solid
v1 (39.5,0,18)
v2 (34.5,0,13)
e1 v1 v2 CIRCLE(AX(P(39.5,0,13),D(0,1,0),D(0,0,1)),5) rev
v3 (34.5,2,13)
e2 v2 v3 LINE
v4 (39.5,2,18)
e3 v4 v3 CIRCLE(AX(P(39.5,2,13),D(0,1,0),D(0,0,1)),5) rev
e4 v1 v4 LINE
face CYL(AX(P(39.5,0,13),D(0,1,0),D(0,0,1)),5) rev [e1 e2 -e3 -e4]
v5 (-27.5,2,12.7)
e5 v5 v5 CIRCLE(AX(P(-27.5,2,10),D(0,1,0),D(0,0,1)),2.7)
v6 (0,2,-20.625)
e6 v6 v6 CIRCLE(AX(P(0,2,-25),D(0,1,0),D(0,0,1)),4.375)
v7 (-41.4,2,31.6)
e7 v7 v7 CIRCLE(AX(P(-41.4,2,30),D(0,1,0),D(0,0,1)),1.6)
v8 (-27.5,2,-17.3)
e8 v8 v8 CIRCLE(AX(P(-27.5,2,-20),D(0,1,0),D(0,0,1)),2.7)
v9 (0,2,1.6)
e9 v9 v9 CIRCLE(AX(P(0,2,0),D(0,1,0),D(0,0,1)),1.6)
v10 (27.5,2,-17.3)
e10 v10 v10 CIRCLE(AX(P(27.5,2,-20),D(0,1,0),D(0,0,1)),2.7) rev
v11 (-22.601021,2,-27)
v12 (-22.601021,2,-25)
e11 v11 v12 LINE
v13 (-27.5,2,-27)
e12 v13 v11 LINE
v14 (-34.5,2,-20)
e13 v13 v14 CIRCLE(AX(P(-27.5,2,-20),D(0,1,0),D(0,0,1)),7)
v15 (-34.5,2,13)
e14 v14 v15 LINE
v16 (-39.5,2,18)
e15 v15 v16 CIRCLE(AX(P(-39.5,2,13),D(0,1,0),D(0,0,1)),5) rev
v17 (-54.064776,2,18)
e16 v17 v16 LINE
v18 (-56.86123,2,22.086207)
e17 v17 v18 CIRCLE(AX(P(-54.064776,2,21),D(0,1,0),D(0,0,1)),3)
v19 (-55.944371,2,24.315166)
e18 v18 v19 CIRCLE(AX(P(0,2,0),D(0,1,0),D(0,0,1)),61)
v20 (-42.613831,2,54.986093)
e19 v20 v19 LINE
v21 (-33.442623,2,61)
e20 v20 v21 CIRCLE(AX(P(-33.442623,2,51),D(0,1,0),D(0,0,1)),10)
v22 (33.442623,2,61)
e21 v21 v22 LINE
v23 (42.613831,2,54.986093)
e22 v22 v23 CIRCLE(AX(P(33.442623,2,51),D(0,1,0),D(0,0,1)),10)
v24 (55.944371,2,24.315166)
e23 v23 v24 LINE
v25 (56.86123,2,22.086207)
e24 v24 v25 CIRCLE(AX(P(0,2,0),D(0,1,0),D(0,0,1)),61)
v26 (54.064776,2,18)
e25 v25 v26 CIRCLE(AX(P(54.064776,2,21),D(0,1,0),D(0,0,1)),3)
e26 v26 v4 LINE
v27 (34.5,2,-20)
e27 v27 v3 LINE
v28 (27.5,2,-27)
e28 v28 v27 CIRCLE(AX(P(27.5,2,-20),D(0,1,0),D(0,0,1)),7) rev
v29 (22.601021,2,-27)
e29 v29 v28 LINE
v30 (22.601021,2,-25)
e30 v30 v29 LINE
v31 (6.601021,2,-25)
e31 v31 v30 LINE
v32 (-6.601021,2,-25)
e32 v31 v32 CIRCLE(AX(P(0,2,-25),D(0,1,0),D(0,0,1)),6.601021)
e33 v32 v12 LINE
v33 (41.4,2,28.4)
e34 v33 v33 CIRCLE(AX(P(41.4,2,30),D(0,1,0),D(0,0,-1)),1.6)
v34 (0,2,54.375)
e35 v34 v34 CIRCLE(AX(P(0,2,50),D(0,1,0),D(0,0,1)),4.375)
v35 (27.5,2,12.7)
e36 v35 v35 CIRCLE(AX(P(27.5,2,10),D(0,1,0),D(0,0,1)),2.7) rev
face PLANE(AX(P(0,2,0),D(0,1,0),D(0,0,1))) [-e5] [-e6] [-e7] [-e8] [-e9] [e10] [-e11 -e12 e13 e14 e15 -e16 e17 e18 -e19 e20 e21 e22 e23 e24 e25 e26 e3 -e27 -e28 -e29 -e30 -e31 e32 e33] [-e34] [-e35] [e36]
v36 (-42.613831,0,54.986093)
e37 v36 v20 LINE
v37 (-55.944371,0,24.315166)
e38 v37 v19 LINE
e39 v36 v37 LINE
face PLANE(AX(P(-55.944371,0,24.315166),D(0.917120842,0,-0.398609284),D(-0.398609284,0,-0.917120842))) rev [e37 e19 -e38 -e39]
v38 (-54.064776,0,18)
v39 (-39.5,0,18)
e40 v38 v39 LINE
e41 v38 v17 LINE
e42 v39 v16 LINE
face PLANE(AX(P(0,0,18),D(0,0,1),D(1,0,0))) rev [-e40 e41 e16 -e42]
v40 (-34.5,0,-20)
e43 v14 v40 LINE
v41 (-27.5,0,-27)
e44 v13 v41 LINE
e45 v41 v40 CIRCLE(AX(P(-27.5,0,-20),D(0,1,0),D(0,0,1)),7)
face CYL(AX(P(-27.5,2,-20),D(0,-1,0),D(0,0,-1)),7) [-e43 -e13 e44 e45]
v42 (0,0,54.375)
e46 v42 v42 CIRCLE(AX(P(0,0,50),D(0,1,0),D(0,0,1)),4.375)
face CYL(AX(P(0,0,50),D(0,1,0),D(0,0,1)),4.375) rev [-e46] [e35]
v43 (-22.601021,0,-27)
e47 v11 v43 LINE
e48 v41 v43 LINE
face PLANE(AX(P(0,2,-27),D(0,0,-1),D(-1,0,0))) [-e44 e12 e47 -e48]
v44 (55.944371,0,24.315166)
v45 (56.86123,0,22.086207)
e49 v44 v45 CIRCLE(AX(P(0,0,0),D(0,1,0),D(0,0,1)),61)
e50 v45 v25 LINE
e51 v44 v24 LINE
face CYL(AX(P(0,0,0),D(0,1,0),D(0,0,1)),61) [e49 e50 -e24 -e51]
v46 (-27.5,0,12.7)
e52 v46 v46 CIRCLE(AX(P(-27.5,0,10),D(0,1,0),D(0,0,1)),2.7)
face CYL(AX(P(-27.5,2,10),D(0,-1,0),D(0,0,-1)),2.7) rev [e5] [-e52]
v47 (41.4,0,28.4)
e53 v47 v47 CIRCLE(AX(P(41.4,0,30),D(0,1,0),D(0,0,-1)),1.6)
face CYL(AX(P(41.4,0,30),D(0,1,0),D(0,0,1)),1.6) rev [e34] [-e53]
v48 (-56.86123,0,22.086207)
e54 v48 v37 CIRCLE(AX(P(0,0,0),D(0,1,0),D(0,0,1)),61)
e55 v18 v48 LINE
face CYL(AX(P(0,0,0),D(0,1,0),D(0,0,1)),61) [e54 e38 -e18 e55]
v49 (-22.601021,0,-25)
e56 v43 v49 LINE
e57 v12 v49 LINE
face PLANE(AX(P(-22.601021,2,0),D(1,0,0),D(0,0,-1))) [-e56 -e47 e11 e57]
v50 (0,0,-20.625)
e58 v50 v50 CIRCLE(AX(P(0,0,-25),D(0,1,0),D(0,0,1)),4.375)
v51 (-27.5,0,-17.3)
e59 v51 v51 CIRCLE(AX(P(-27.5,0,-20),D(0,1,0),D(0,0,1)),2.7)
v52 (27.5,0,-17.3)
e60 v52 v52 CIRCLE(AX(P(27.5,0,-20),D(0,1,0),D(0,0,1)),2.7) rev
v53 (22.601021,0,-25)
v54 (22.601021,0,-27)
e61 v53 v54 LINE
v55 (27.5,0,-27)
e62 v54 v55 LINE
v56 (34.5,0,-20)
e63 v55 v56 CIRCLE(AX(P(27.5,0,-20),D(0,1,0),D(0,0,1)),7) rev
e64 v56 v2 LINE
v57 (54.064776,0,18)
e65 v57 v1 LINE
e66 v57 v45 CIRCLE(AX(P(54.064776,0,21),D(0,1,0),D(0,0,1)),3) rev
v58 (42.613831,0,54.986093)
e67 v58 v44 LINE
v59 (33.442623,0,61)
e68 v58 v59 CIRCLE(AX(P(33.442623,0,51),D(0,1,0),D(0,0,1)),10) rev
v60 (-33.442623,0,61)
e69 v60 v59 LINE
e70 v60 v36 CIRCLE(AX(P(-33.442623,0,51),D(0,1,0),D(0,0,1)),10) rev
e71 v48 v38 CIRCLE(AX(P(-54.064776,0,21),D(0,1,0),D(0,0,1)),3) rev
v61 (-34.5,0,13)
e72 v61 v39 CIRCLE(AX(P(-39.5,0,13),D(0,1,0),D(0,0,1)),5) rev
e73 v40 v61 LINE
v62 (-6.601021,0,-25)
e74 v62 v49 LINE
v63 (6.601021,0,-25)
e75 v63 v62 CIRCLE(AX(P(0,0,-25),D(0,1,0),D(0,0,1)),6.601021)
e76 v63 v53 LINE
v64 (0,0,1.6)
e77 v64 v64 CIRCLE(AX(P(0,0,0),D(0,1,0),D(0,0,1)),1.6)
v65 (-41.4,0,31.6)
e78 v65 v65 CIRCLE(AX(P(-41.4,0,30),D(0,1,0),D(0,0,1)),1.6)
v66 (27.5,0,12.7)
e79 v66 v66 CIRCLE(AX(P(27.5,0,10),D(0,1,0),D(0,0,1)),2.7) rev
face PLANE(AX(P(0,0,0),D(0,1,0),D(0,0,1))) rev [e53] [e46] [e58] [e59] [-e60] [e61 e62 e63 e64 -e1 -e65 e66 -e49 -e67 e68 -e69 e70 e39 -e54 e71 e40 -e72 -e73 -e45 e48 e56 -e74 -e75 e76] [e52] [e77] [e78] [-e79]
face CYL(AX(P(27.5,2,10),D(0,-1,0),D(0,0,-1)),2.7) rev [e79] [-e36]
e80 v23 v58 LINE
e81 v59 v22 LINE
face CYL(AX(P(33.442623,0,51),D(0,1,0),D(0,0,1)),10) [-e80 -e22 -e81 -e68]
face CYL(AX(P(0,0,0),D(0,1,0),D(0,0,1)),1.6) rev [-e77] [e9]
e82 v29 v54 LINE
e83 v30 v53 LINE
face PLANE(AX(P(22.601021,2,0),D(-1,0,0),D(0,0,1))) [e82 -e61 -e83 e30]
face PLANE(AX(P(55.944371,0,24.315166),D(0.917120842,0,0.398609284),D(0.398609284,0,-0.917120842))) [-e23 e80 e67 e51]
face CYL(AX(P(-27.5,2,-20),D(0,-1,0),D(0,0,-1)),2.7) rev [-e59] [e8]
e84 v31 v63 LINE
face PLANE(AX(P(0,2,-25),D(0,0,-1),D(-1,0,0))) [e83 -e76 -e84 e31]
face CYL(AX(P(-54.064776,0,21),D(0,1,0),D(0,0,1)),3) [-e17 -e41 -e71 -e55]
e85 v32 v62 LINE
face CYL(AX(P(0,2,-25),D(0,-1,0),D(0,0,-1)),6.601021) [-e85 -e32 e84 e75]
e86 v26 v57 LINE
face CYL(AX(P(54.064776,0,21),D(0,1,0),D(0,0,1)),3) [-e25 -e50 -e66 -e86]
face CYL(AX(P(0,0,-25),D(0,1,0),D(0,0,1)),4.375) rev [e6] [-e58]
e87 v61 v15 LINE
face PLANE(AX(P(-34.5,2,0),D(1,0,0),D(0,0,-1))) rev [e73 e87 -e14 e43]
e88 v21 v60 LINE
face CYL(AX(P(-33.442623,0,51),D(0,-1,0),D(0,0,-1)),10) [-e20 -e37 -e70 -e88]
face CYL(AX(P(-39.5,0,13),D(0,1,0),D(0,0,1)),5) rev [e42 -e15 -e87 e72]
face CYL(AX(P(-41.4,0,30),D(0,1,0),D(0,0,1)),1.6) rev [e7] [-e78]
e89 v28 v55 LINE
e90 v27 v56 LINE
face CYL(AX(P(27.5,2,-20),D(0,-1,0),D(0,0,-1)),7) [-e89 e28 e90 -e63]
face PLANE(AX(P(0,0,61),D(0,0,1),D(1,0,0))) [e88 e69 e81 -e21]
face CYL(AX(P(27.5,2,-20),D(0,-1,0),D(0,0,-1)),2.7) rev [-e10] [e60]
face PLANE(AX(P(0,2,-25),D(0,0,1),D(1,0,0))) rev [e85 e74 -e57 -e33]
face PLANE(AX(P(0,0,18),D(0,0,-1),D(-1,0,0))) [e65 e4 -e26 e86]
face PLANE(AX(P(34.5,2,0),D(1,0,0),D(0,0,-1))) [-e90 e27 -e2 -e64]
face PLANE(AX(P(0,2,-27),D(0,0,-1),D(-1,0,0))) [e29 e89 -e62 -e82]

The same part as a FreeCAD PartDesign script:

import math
import FreeCAD as App
import Part
import Sketcher

V = App.Vector


def edges_at(feature, points):
    """Names of the edges that pass closest to the given points."""
    edges = feature.Shape.Edges
    near = lambda p: min(range(len(edges)), key=lambda i: edges[i].distToShape(Part.Vertex(*p))[0])
    return sorted({f"Edge{near(p) + 1}" for p in points})

doc = App.newDocument("Part")
params = doc.addObject("Spreadsheet::Sheet", "Params")
for row, (alias, value) in enumerate([
    ("sketch1_radius", "61 mm"),
    ("sketch1_radius2", "7 mm"),
    ("sketch1_diameter", "5.4 mm"),
    ("sketch1_width", "16 mm"),
    ("sketch1_height", "2 mm"),
    ("pad1_length", "2 mm"),
    ("sketch2_radius", "61 mm"),
    ("sketch2_radius2", "5 mm"),
    ("sketch2_width", "40 mm"),
    ("pad2_length", "2 mm"),
    ("fillet_radius", "3 mm"),
    ("sketch3_diameter", "3.2 mm"),
    ("sketch3_diameter2", "8.75 mm"),
    ("fillet2_radius", "10 mm"),
], start=1):
    params.set(f"A{row}", alias)
    params.set(f"B{row}", "=" + value)
    params.setAlias(f"B{row}", alias)

body = doc.addObject("PartDesign::Body", "Body")

sketch1 = body.newObject("Sketcher::SketchObject", "Sketch")
sketch1.AttachmentSupport = (doc.getObject("XZ_Plane"), [""])
sketch1.MapMode = "FlatFace"
sketch1.addGeometry(Part.LineSegment(V(-34.5, -20, 0), V(-34.5, 50.3, 0)), False)
sketch1.addGeometry(Part.ArcOfCircle(Part.Circle(V(0, 0, 0), V(0, 0, 1), 61), math.radians(56), math.radians(124)), False)
sketch1.addGeometry(Part.LineSegment(V(34.5, 50.3, 0), V(34.5, -20, 0)), False)
sketch1.addGeometry(Part.ArcOfCircle(Part.Circle(V(27.5, -20, 0), V(0, 0, 1), 7), math.radians(-90), math.radians(0)), False)
sketch1.addGeometry(Part.LineSegment(V(27.5, -27, 0), V(22.6, -27, 0)), False)
sketch1.addGeometry(Part.LineSegment(V(22.6, -27, 0), V(22.6, -25, 0)), False)
sketch1.addGeometry(Part.LineSegment(V(22.6, -25, 0), V(6.6, -25, 0)), False)
sketch1.addGeometry(Part.ArcOfCircle(Part.Circle(V(0, -25, 0), V(0, 0, 1), 6.6), math.radians(-17.64), math.radians(0)), False)
sketch1.addGeometry(Part.ArcOfCircle(Part.Circle(V(0, -25, 0), V(0, 0, 1), 6.6), math.radians(-162), math.radians(-18)), False)
sketch1.addGeometry(Part.ArcOfCircle(Part.Circle(V(0, -25, 0), V(0, 0, 1), 6.6), math.radians(180), math.radians(197.64)), False)
sketch1.addGeometry(Part.LineSegment(V(-6.6, -25, 0), V(-22.6, -25, 0)), False)
sketch1.addGeometry(Part.LineSegment(V(-22.6, -25, 0), V(-22.6, -27, 0)), False)
sketch1.addGeometry(Part.LineSegment(V(-22.6, -27, 0), V(-27.5, -27, 0)), False)
sketch1.addGeometry(Part.ArcOfCircle(Part.Circle(V(-27.5, -20, 0), V(0, 0, 1), 7), math.radians(180), math.radians(270)), False)
sketch1.addGeometry(Part.Circle(V(-27.5, 10, 0), V(0, 0, 1), 2.7), False)
sketch1.addGeometry(Part.Circle(V(-27.5, -20, 0), V(0, 0, 1), 2.7), False)
sketch1.addGeometry(Part.Circle(V(27.5, -20, 0), V(0, 0, 1), 2.7), False)
sketch1.addGeometry(Part.Circle(V(27.5, 10, 0), V(0, 0, 1), 2.7), False)
sketch1.addConstraint(Sketcher.Constraint("Coincident", 0, 2, 1, 2))
sketch1.addConstraint(Sketcher.Constraint("Coincident", 1, 1, 2, 1))
sketch1.addConstraint(Sketcher.Constraint("Tangent", 2, 2, 3, 2))
sketch1.addConstraint(Sketcher.Constraint("Tangent", 3, 1, 4, 1))
sketch1.addConstraint(Sketcher.Constraint("Coincident", 4, 2, 5, 1))
sketch1.addConstraint(Sketcher.Constraint("Coincident", 5, 2, 6, 1))
sketch1.addConstraint(Sketcher.Constraint("Coincident", 6, 2, 7, 2))
sketch1.addConstraint(Sketcher.Constraint("Tangent", 7, 1, 8, 2))
sketch1.addConstraint(Sketcher.Constraint("Tangent", 8, 1, 9, 2))
sketch1.addConstraint(Sketcher.Constraint("Coincident", 9, 1, 10, 1))
sketch1.addConstraint(Sketcher.Constraint("Coincident", 10, 2, 11, 1))
sketch1.addConstraint(Sketcher.Constraint("Coincident", 11, 2, 12, 1))
sketch1.addConstraint(Sketcher.Constraint("Tangent", 12, 2, 13, 2))
sketch1.addConstraint(Sketcher.Constraint("Tangent", 13, 1, 0, 1))
sketch1.addConstraint(Sketcher.Constraint("Vertical", 0))
sketch1.addConstraint(Sketcher.Constraint("Vertical", 2))
sketch1.addConstraint(Sketcher.Constraint("Horizontal", 4))
sketch1.addConstraint(Sketcher.Constraint("Vertical", 5))
sketch1.addConstraint(Sketcher.Constraint("Horizontal", 6))
sketch1.addConstraint(Sketcher.Constraint("Horizontal", 10))
sketch1.addConstraint(Sketcher.Constraint("Vertical", 11))
sketch1.addConstraint(Sketcher.Constraint("Horizontal", 12))
sketch1.addConstraint(Sketcher.Constraint("Coincident", 1, 3, -1, 1))
sketch1.addConstraint(Sketcher.Constraint("Coincident", 9, 3, 7, 3))
sketch1.addConstraint(Sketcher.Constraint("Coincident", 15, 3, 13, 3))
sketch1.addConstraint(Sketcher.Constraint("Coincident", 16, 3, 3, 3))
sketch1.addConstraint(Sketcher.Constraint("Equal", 3, 13))
sketch1.addConstraint(Sketcher.Constraint("Equal", 14, 15))
sketch1.addConstraint(Sketcher.Constraint("Equal", 15, 16))
sketch1.addConstraint(Sketcher.Constraint("Equal", 16, 17))
sketch1.addConstraint(Sketcher.Constraint("Symmetric", 3, 3, 13, 3, -2))
sketch1.addConstraint(Sketcher.Constraint("Symmetric", 14, 3, 17, 3, -2))
sketch1.addConstraint(Sketcher.Constraint("Symmetric", 7, 1, 8, 1, -2))
sketch1.addConstraint(Sketcher.Constraint("Symmetric", 5, 2, 10, 2, -2))
sketch1.addConstraint(Sketcher.Constraint("Horizontal", 9, 3, 5, 2))
sketch1.addConstraint(Sketcher.Constraint("Horizontal", 4, 2, 7, 1))
sketch1.addConstraint(Sketcher.Constraint("Vertical", 13, 3, 14, 3))
sketch1.addConstraint(Sketcher.Constraint("Radius", 1, 61.0))
sketch1.addConstraint(Sketcher.Constraint("Radius", 3, 7.0))
sketch1.addConstraint(Sketcher.Constraint("Diameter", 14, 5.4))
sketch1.addConstraint(Sketcher.Constraint("DistanceX", 6, 2, 6, 1, 16.0))
sketch1.addConstraint(Sketcher.Constraint("DistanceY", 5, 1, 5, 2, 2.0))
sketch1.addConstraint(Sketcher.Constraint("DistanceY", 3, 3, -1, 1, 20.0))
sketch1.addConstraint(Sketcher.Constraint("DistanceY", -1, 1, 14, 3, 10.0))
sketch1.addConstraint(Sketcher.Constraint("DistanceX", 13, 3, 3, 3, 55.0))
sketch1.addConstraint(Sketcher.Constraint("Radius", 7, 6.601021))
sketch1.setExpression("Constraints[37]", "Params.sketch1_radius")
sketch1.setExpression("Constraints[38]", "Params.sketch1_radius2")
sketch1.setExpression("Constraints[39]", "Params.sketch1_diameter")
sketch1.setExpression("Constraints[40]", "Params.sketch1_width")
sketch1.setExpression("Constraints[41]", "Params.sketch1_height")
pad1 = body.newObject("PartDesign::Pad", "Pad")
pad1.Profile = sketch1
pad1.setExpression("Length", "Params.pad1_length")
pad1.Reversed = True

sketch2 = body.newObject("Sketcher::SketchObject", "Sketch001")
sketch2.AttachmentSupport = (doc.getObject("XZ_Plane"), [""])
sketch2.MapMode = "FlatFace"
sketch2.addGeometry(Part.LineSegment(V(-56, 24, 0), V(-40, 61, 0)), False)
sketch2.addGeometry(Part.LineSegment(V(-40, 61, 0), V(0, 61, 0)), False)
sketch2.addGeometry(Part.ArcOfCircle(Part.Circle(V(0, 0, 0), V(0, 0, 1), 61), math.radians(90), math.radians(124)), False)
sketch2.addGeometry(Part.LineSegment(V(-34, 50, 0), V(-34, 13, 0)), False)
sketch2.addGeometry(Part.ArcOfCircle(Part.Circle(V(-40, 13, 0), V(0, 0, 1), 5), math.radians(0), math.radians(90)), False)
sketch2.addGeometry(Part.LineSegment(V(-40, 18, 0), V(-58, 18, 0)), False)
sketch2.addGeometry(Part.ArcOfCircle(Part.Circle(V(0, 0, 0), V(0, 0, 1), 61), math.radians(156.51), math.radians(162.84)), False)
sketch2.addGeometry(Part.ArcOfCircle(Part.Circle(V(0, 0, 0), V(0, 0, 1), 61), math.radians(56), math.radians(90)), False)
sketch2.addGeometry(Part.LineSegment(V(0, 61, 0), V(40, 61, 0)), False)
sketch2.addGeometry(Part.LineSegment(V(40, 61, 0), V(56, 24, 0)), False)
sketch2.addGeometry(Part.ArcOfCircle(Part.Circle(V(0, 0, 0), V(0, 0, 1), 61), math.radians(17.16), math.radians(23.49)), False)
sketch2.addGeometry(Part.LineSegment(V(58, 18, 0), V(40, 18, 0)), False)
sketch2.addGeometry(Part.ArcOfCircle(Part.Circle(V(40, 13, 0), V(0, 0, 1), 5), math.radians(90), math.radians(180)), False)
sketch2.addGeometry(Part.LineSegment(V(34, 13, 0), V(34, 50, 0)), False)
sketch2.addConstraint(Sketcher.Constraint("Coincident", 0, 2, 1, 1))
sketch2.addConstraint(Sketcher.Constraint("Tangent", 1, 2, 2, 1))
sketch2.addConstraint(Sketcher.Constraint("Coincident", 2, 2, 3, 1))
sketch2.addConstraint(Sketcher.Constraint("Tangent", 3, 2, 4, 1))
sketch2.addConstraint(Sketcher.Constraint("Tangent", 4, 2, 5, 1))
sketch2.addConstraint(Sketcher.Constraint("Coincident", 5, 2, 6, 2))
sketch2.addConstraint(Sketcher.Constraint("Tangent", 6, 1, 0, 1))
sketch2.addConstraint(Sketcher.Constraint("Tangent", 7, 2, 8, 1))
sketch2.addConstraint(Sketcher.Constraint("Coincident", 8, 2, 9, 1))
sketch2.addConstraint(Sketcher.Constraint("Tangent", 9, 2, 10, 2))
sketch2.addConstraint(Sketcher.Constraint("Coincident", 10, 1, 11, 1))
sketch2.addConstraint(Sketcher.Constraint("Tangent", 11, 2, 12, 1))
sketch2.addConstraint(Sketcher.Constraint("Tangent", 12, 2, 13, 1))
sketch2.addConstraint(Sketcher.Constraint("Coincident", 13, 2, 7, 1))
sketch2.addConstraint(Sketcher.Constraint("Horizontal", 1))
sketch2.addConstraint(Sketcher.Constraint("Vertical", 3))
sketch2.addConstraint(Sketcher.Constraint("Horizontal", 5))
sketch2.addConstraint(Sketcher.Constraint("Horizontal", 8))
sketch2.addConstraint(Sketcher.Constraint("Horizontal", 11))
sketch2.addConstraint(Sketcher.Constraint("Vertical", 13))
sketch2.addConstraint(Sketcher.Constraint("Coincident", 2, 3, -1, 1))
sketch2.addConstraint(Sketcher.Constraint("Coincident", 6, 3, -1, 1))
sketch2.addConstraint(Sketcher.Constraint("Coincident", 7, 3, -1, 1))
sketch2.addConstraint(Sketcher.Constraint("Coincident", 10, 3, -1, 1))
sketch2.addConstraint(Sketcher.Constraint("Equal", 2, 6))
sketch2.addConstraint(Sketcher.Constraint("Equal", 6, 7))
sketch2.addConstraint(Sketcher.Constraint("Equal", 7, 10))
sketch2.addConstraint(Sketcher.Constraint("Equal", 4, 12))
sketch2.addConstraint(Sketcher.Constraint("Symmetric", 4, 3, 12, 3, -2))
sketch2.addConstraint(Sketcher.Constraint("Horizontal", 6, 1, 9, 2))
sketch2.addConstraint(Sketcher.Constraint("Radius", 2, 61.0))
sketch2.addConstraint(Sketcher.Constraint("Radius", 4, 5.0))
sketch2.addConstraint(Sketcher.Constraint("DistanceX", 1, 1, 1, 2, 40.0))
sketch2.addConstraint(Sketcher.Constraint("DistanceY", -1, 1, 4, 3, 13.0))
sketch2.addConstraint(Sketcher.Constraint("DistanceX", 4, 3, 12, 3, 79.0))
sketch2.setExpression("Constraints[30]", "Params.sketch2_radius")
sketch2.setExpression("Constraints[31]", "Params.sketch2_radius2")
sketch2.setExpression("Constraints[32]", "Params.sketch2_width")
pad2 = body.newObject("PartDesign::Pad", "Pad001")
pad2.Profile = sketch2
pad2.setExpression("Length", "Params.pad2_length")
pad2.Reversed = True
doc.recompute()

fillet = body.newObject("PartDesign::Fillet", "Fillet")
fillet.Base = (pad2, edges_at(pad2, [(-58.284, 1, 18), (58.284, 1, 18)]))
fillet.setExpression("Radius", "Params.fillet_radius")

sketch3 = body.newObject("Sketcher::SketchObject", "Sketch002")
sketch3.AttachmentSupport = (doc.getObject("XZ_Plane"), [""])
sketch3.MapMode = "FlatFace"
sketch3.AttachmentOffset = App.Placement(V(0, 0, -2), App.Rotation())
sketch3.addGeometry(Part.Circle(V(0, -25, 0), V(0, 0, 1), 4.4), False)
sketch3.addGeometry(Part.Circle(V(0, 50, 0), V(0, 0, 1), 4.4), False)
sketch3.addGeometry(Part.Circle(V(0, 0, 0), V(0, 0, 1), 1.6), False)
sketch3.addGeometry(Part.Circle(V(-41.4, 30, 0), V(0, 0, 1), 1.6), False)
sketch3.addGeometry(Part.Circle(V(41.4, 30, 0), V(0, 0, 1), 1.6), False)
sketch3.addConstraint(Sketcher.Constraint("Coincident", 2, 3, -1, 1))
sketch3.addConstraint(Sketcher.Constraint("Equal", 0, 1))
sketch3.addConstraint(Sketcher.Constraint("Equal", 2, 3))
sketch3.addConstraint(Sketcher.Constraint("Equal", 3, 4))
sketch3.addConstraint(Sketcher.Constraint("Symmetric", 3, 3, 4, 3, -2))
sketch3.addConstraint(Sketcher.Constraint("PointOnObject", 0, 3, -2))
sketch3.addConstraint(Sketcher.Constraint("PointOnObject", 1, 3, -2))
sketch3.addConstraint(Sketcher.Constraint("Diameter", 2, 3.2))
sketch3.addConstraint(Sketcher.Constraint("Diameter", 0, 8.75))
sketch3.addConstraint(Sketcher.Constraint("DistanceY", 0, 3, -1, 1, 25.0))
sketch3.addConstraint(Sketcher.Constraint("DistanceY", -1, 1, 1, 3, 50.0))
sketch3.addConstraint(Sketcher.Constraint("DistanceY", -1, 1, 3, 3, 30.0))
sketch3.addConstraint(Sketcher.Constraint("DistanceX", 3, 3, -1, 1, 41.4))
sketch3.setExpression("Constraints[7]", "Params.sketch3_diameter")
sketch3.setExpression("Constraints[8]", "Params.sketch3_diameter2")
pocket1 = body.newObject("PartDesign::Pocket", "Pocket")
pocket1.Profile = sketch3
pocket1.Type = "ThroughAll"
pocket1.Reversed = True
doc.recompute()

fillet2 = body.newObject("PartDesign::Fillet", "Fillet001")
fillet2.Base = (pocket1, edges_at(pocket1, [(-40, 1, 61), (40, 1, 61)]))
fillet2.setExpression("Radius", "Params.fillet2_radius")

doc.recompute()
